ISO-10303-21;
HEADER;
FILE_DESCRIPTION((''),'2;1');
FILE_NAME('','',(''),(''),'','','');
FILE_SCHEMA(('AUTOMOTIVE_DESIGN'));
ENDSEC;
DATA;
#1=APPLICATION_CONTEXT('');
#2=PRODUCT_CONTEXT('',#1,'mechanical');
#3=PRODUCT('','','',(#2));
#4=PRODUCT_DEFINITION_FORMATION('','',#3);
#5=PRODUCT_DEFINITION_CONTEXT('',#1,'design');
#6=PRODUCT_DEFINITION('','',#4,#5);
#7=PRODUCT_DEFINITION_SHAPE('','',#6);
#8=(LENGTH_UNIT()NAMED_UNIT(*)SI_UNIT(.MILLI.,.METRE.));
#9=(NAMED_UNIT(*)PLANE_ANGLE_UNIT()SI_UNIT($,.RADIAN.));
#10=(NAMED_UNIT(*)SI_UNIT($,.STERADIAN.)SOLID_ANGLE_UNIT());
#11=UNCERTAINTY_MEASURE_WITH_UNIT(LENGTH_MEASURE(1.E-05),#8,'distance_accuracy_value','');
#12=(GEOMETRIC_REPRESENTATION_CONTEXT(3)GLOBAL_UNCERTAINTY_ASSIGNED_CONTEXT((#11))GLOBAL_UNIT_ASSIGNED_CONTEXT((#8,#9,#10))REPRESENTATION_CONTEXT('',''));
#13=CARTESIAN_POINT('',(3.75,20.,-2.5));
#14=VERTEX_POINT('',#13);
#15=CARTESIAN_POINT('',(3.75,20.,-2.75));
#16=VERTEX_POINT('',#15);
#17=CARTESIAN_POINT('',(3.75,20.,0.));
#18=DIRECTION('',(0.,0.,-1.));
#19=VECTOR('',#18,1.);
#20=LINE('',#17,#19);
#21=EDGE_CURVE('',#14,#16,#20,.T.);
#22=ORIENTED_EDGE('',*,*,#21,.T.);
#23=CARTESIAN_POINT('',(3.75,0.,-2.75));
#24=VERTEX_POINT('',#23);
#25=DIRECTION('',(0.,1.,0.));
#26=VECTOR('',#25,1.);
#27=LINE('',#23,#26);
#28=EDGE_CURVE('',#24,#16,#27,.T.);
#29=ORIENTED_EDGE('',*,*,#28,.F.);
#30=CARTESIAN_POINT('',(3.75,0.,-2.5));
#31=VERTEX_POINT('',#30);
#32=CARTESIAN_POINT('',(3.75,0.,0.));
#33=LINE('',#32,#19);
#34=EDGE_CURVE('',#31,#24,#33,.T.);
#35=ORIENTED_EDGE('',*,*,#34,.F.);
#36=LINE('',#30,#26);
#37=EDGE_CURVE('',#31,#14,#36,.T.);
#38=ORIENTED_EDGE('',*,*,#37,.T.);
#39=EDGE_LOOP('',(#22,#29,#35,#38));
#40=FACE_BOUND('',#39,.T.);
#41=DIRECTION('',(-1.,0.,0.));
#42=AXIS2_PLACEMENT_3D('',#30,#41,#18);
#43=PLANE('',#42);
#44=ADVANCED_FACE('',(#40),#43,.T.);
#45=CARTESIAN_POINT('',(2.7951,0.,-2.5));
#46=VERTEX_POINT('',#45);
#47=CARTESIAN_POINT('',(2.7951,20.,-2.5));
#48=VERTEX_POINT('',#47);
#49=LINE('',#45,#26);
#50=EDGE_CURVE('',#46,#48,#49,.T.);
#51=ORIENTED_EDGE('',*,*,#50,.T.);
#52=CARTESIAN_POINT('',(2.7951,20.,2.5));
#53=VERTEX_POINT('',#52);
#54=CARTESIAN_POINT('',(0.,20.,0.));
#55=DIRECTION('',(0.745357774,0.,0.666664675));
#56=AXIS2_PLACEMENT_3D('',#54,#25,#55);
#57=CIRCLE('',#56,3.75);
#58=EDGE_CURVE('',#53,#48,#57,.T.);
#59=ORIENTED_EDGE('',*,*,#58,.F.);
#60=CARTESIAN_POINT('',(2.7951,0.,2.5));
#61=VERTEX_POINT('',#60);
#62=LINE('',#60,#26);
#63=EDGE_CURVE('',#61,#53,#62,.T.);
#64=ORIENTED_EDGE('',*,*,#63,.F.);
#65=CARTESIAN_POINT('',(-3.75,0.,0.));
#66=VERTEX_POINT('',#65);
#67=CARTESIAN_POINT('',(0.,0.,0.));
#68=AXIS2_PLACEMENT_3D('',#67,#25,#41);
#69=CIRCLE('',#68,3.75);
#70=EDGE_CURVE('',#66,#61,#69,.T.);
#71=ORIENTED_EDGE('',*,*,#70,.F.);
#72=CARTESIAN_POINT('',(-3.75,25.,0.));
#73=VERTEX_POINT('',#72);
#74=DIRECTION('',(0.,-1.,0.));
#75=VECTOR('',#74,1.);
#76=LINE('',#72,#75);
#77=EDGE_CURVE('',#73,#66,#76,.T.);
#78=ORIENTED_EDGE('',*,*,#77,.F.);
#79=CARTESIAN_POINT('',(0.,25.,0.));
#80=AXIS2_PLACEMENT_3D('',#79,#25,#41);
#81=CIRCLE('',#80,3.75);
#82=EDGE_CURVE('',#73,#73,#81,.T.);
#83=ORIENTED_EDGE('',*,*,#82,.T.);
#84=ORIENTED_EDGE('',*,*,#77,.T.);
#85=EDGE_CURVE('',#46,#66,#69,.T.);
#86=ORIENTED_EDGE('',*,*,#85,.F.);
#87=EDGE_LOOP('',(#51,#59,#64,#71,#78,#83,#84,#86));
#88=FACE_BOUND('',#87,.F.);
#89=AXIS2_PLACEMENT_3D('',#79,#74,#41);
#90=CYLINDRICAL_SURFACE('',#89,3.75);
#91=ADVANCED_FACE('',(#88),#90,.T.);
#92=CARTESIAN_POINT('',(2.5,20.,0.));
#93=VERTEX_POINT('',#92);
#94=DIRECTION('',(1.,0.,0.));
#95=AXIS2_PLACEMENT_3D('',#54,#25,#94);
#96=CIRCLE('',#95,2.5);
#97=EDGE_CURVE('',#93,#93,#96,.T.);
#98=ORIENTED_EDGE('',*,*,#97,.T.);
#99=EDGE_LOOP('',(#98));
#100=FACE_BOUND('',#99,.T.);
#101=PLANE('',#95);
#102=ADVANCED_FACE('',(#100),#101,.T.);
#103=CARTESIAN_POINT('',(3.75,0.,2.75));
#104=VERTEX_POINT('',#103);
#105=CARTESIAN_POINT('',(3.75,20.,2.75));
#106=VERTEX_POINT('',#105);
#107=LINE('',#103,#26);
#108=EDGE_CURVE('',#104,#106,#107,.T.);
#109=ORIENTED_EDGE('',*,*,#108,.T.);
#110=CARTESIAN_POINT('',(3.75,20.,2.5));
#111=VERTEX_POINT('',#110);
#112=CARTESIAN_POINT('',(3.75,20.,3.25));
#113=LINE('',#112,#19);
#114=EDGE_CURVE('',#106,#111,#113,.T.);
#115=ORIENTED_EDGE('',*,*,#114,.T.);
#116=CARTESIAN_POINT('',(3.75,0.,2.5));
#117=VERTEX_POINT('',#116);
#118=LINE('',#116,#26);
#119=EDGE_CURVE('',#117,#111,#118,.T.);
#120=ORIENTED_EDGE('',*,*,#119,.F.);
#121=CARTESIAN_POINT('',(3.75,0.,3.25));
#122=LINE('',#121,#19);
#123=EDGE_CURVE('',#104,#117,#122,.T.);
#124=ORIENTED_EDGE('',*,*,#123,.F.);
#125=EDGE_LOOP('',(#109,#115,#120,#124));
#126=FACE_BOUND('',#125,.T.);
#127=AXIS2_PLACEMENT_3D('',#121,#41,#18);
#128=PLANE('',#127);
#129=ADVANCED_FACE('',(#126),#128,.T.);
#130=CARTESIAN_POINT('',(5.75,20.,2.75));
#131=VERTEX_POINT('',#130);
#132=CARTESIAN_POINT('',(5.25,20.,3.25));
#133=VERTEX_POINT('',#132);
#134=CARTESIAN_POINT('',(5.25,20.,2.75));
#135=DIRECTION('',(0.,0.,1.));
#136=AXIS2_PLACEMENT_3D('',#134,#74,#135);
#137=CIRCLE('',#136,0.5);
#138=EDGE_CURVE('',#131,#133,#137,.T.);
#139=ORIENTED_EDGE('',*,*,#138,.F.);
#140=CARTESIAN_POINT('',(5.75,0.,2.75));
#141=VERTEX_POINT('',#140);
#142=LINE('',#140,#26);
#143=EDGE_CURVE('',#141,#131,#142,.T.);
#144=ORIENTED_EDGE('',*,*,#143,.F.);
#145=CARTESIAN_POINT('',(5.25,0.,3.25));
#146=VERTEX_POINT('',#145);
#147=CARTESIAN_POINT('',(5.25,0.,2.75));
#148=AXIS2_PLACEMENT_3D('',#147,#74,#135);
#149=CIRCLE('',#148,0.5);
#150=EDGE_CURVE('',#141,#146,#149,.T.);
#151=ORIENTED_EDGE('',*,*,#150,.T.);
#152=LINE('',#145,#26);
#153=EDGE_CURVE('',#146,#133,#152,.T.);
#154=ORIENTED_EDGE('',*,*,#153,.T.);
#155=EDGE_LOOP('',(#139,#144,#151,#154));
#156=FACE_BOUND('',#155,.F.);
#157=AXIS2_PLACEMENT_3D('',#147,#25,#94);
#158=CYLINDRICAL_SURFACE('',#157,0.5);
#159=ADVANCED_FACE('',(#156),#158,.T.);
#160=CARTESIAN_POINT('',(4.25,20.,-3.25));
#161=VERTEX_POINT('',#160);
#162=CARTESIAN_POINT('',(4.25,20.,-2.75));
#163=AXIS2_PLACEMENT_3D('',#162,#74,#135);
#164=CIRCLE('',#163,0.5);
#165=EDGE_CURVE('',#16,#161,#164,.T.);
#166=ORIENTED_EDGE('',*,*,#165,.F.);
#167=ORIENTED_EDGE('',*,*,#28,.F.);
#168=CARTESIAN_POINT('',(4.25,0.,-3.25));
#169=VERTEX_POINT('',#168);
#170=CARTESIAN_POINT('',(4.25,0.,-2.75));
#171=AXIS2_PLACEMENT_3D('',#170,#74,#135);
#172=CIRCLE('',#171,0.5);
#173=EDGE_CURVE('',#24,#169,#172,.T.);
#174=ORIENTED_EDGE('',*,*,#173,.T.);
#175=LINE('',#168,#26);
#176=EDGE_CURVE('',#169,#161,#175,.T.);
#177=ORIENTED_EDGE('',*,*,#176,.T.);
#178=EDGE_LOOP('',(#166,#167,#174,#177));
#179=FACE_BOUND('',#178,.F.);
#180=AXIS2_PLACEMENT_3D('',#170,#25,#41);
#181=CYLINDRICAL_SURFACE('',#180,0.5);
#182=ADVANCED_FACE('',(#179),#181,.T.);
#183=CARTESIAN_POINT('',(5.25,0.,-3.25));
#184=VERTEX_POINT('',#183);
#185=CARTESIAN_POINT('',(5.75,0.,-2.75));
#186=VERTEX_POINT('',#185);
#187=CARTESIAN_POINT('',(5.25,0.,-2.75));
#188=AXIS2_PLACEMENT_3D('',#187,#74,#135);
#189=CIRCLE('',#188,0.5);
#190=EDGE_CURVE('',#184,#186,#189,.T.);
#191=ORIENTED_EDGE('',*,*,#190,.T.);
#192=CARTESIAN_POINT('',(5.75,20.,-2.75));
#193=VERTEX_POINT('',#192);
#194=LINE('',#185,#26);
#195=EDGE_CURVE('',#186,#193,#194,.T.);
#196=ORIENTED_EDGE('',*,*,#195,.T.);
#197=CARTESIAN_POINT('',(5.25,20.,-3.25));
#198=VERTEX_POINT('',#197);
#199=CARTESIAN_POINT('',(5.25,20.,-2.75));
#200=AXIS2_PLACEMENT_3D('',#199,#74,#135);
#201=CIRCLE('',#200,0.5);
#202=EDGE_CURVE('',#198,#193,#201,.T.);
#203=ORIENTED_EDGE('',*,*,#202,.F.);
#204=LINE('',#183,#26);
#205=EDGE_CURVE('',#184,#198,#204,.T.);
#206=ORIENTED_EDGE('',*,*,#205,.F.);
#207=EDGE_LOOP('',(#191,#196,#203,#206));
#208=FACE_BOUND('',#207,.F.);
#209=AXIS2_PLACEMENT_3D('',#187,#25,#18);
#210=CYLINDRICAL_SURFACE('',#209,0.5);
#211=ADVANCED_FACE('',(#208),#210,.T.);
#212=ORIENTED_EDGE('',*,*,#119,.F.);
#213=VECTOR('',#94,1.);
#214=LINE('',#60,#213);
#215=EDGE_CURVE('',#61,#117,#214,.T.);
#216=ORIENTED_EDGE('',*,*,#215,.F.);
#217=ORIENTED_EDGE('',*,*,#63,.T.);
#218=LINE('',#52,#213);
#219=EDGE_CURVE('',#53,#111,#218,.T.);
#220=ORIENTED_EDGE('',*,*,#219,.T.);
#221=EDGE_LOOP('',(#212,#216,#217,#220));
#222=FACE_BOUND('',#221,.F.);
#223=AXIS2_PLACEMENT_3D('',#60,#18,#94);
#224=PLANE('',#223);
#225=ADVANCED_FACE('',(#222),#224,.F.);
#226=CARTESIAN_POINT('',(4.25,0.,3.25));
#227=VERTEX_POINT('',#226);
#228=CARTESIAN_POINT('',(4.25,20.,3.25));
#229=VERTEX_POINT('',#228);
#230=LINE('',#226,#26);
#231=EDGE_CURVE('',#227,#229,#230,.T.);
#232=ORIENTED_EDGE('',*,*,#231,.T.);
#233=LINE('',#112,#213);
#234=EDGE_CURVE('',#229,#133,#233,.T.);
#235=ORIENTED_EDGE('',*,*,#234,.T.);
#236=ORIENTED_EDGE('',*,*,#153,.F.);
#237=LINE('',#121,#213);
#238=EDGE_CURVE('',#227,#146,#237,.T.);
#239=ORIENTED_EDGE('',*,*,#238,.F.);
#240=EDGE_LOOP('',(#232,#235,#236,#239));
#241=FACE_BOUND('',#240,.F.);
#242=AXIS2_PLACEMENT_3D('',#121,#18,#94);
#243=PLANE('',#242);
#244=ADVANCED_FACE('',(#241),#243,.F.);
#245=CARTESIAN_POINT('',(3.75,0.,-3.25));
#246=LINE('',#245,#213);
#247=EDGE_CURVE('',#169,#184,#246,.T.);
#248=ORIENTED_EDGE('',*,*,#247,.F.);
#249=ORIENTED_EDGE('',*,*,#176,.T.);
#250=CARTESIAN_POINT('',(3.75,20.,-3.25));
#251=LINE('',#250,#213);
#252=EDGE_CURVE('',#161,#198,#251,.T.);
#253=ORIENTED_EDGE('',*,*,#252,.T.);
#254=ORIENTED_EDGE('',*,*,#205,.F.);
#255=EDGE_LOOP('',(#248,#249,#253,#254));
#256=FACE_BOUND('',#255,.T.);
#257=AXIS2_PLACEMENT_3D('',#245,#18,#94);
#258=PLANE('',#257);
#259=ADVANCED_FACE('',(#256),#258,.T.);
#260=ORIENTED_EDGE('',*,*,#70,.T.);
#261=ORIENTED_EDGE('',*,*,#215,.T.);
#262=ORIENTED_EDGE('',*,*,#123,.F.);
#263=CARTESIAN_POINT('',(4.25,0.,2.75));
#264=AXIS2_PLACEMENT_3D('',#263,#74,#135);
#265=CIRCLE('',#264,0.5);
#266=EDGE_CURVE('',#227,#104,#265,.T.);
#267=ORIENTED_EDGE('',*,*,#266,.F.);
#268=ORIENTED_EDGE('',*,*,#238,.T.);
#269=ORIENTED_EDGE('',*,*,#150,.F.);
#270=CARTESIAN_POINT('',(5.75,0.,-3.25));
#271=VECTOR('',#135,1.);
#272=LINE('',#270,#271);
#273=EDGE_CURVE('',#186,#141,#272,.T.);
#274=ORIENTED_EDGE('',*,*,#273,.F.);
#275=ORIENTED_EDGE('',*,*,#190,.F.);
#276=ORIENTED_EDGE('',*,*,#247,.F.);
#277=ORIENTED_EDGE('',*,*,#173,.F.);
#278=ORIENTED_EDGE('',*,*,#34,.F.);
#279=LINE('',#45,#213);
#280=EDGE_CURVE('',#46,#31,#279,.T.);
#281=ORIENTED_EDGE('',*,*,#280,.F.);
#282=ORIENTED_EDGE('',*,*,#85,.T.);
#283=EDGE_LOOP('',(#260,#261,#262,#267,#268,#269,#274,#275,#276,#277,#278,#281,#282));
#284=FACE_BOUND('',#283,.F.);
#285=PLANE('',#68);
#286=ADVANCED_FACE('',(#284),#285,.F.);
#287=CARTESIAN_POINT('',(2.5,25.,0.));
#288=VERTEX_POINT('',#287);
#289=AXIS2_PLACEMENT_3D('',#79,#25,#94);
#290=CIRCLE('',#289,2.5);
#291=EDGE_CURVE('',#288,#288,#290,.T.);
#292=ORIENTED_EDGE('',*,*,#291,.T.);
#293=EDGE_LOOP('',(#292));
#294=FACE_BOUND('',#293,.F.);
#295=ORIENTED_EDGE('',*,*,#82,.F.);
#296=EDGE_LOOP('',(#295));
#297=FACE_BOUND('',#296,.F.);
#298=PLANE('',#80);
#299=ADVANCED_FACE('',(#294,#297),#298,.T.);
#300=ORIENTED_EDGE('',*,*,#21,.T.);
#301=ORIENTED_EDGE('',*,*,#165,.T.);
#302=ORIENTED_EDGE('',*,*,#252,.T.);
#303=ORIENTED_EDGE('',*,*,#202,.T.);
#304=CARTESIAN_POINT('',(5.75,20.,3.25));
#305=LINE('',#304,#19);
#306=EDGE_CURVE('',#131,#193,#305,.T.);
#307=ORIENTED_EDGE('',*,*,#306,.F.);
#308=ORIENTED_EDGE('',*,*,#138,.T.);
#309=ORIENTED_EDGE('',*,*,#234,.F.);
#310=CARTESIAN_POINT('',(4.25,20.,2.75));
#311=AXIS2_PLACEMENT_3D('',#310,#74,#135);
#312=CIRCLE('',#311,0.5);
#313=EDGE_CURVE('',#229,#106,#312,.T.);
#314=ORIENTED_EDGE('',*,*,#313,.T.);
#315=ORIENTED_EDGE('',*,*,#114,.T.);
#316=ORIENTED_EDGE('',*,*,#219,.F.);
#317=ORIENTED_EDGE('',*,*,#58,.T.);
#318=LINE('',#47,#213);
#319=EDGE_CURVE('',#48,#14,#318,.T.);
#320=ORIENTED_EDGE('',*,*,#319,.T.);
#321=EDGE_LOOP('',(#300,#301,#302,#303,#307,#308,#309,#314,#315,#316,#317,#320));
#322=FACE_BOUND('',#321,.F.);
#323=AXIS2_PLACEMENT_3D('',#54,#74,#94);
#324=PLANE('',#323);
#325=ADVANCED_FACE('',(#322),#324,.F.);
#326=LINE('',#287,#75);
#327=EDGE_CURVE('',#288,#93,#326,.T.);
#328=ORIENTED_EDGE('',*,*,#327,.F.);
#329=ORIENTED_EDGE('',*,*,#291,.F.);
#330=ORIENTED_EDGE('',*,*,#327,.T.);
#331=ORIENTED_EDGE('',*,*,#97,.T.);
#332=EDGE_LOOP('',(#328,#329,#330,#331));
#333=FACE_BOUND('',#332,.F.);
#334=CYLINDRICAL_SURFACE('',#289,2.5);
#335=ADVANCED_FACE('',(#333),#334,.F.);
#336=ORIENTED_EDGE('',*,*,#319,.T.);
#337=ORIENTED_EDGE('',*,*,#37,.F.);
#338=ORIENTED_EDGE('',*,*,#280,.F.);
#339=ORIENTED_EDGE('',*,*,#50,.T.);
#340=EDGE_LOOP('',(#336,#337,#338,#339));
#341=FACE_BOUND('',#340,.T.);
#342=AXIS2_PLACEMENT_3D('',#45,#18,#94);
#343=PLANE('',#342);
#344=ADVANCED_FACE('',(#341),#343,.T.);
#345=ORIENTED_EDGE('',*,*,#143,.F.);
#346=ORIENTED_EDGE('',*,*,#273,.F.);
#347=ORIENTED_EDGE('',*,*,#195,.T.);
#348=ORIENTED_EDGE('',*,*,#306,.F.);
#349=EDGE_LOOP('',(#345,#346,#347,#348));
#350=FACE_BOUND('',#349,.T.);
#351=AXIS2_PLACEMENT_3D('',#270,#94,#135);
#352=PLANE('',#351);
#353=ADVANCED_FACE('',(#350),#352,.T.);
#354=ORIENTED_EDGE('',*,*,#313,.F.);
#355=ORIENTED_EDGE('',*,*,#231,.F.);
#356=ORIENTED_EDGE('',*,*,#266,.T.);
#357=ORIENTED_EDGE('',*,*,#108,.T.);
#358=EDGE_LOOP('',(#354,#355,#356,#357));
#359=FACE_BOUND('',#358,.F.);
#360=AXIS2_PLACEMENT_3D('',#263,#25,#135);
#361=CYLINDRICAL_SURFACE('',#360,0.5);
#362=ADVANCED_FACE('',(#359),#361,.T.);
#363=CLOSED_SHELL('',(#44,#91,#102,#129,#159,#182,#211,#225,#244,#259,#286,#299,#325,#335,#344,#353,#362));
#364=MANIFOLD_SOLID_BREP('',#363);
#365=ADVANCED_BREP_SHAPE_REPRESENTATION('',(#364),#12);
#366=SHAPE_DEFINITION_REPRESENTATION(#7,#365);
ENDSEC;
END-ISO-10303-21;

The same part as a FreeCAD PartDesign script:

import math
import FreeCAD as App
import Part
import Sketcher


def edges_at(feature, points):
    """Names of the edges that pass closest to the given points."""
    edges = feature.Shape.Edges
    near = lambda p: min(range(len(edges)), key=lambda i: edges[i].distToShape(Part.Vertex(*p))[0])
    return sorted({f"Edge{near(p) + 1}" for p in points})


def add_polygon(sketch, points):
    """Adds a closed chain of lines whose ends are joined by coincident constraints."""
    first, n = sketch.GeometryCount, len(points)
    for a, b in zip(points, points[1:] + points[:1]):
        sketch.addGeometry(Part.LineSegment(App.Vector(*a, 0), App.Vector(*b, 0)), False)
    for i in range(n):
        sketch.addConstraint(Sketcher.Constraint("Coincident", first + i, 2, first + (i + 1) % n, 1))

doc = App.newDocument("Part")
body = doc.addObject("PartDesign::Body", "Body")

# Sketch on XY plane
sketch1 = body.newObject("Sketcher::SketchObject", "Sketch")
sketch1.AttachmentSupport = (doc.getObject("XY_Plane"), [""])
sketch1.MapMode = "FlatFace"
add_polygon(sketch1, [(0, 0), (0, 25), (-3.8, 25), (-3.8, 0)])  # lines 0-3
sketch1.addConstraint([
    Sketcher.Constraint("Vertical", 0),
    Sketcher.Constraint("Horizontal", 1),
    Sketcher.Constraint("Vertical", 2),
    Sketcher.Constraint("Horizontal", 3),
    Sketcher.Constraint("Coincident", 3, 2, -1, 1),
    Sketcher.Constraint("DistanceY", 0, 1, 0, 2, 25.0),
    Sketcher.Constraint("DistanceX", 1, 2, 1, 1, 3.75),
])
revolution = body.newObject("PartDesign::Revolution", "Revolution")
revolution.Profile = sketch1
revolution.ReferenceAxis = (sketch1, ["V_Axis"])
revolution.Angle = 360

# Sketch on XZ plane
sketch2 = body.newObject("Sketcher::SketchObject", "Sketch001")
sketch2.AttachmentSupport = (doc.getObject("XZ_Plane"), [""])
sketch2.MapMode = "FlatFace"
sketch2.AttachmentOffset = App.Placement(App.Vector(0, 0, -25), App.Rotation())
sketch2.addGeometry(Part.Circle(App.Vector(0, 0, 0), App.Vector(0, 0, 1), 2.5), False)
sketch2.addConstraint([
    Sketcher.Constraint("Coincident", 0, 3, -1, 1),
    Sketcher.Constraint("Diameter", 0, 5.0),
])
pocket1 = body.newObject("PartDesign::Pocket", "Pocket")
pocket1.Profile = sketch2
pocket1.Length = 5
pocket1.Reversed = True

# Sketch on XZ plane
sketch3 = body.newObject("Sketcher::SketchObject", "Sketch002")
sketch3.AttachmentSupport = (doc.getObject("XZ_Plane"), [""])
sketch3.MapMode = "FlatFace"
sketch3.addGeometry([
    Part.LineSegment(App.Vector(2.8, -2.5, 0), App.Vector(3.8, -2.5, 0)),  # 0
    Part.LineSegment(App.Vector(3.8, -2.5, 0), App.Vector(3.8, -3.2, 0)),  # 1
    Part.LineSegment(App.Vector(3.8, -3.2, 0), App.Vector(5.8, -3.2, 0)),  # 2
    Part.LineSegment(App.Vector(5.8, -3.2, 0), App.Vector(5.8, 3.2, 0)),  # 3
    Part.LineSegment(App.Vector(5.8, 3.2, 0), App.Vector(3.8, 3.2, 0)),  # 4
    Part.LineSegment(App.Vector(3.8, 3.2, 0), App.Vector(3.8, 2.5, 0)),  # 5
    Part.LineSegment(App.Vector(3.8, 2.5, 0), App.Vector(2.8, 2.5, 0)),  # 6
    Part.ArcOfCircle(Part.Circle(App.Vector(0, 0, 0), App.Vector(0, 0, 1), 3.8), math.radians(-42), math.radians(42)),  # 7
], False)
sketch3.addConstraint([
    Sketcher.Constraint("Coincident", 0, 2, 1, 1),
    Sketcher.Constraint("Coincident", 1, 2, 2, 1),
    Sketcher.Constraint("Coincident", 2, 2, 3, 1),
    Sketcher.Constraint("Coincident", 3, 2, 4, 1),
    Sketcher.Constraint("Coincident", 4, 2, 5, 1),
    Sketcher.Constraint("Coincident", 5, 2, 6, 1),
    Sketcher.Constraint("Coincident", 6, 2, 7, 2),
    Sketcher.Constraint("Coincident", 7, 1, 0, 1),
    Sketcher.Constraint("Horizontal", 0),
    Sketcher.Constraint("Vertical", 1),
    Sketcher.Constraint("Horizontal", 2),
    Sketcher.Constraint("Vertical", 3),
    Sketcher.Constraint("Horizontal", 4),
    Sketcher.Constraint("Vertical", 5),
    Sketcher.Constraint("Horizontal", 6),
    Sketcher.Constraint("Coincident", 7, 3, -1, 1),
    Sketcher.Constraint("Symmetric", 1, 2, 4, 2, -1),
    Sketcher.Constraint("Vertical", 6, 2, 7, 1),
    Sketcher.Constraint("DistanceX", 2, 1, 2, 2, 2.0),
    Sketcher.Constraint("DistanceY", 3, 1, 3, 2, 6.5),
    Sketcher.Constraint("DistanceY", 0, 2, 5, 2, 5.0),
    Sketcher.Constraint("Radius", 7, 3.75),
    Sketcher.Constraint("DistanceX", 0, 1, 0, 2, 0.955),
])
pad1 = body.newObject("PartDesign::Pad", "Pad")
pad1.Profile = sketch3
pad1.Length = 20
pad1.Reversed = True
doc.recompute()

fillet = body.newObject("PartDesign::Fillet", "Fillet")
fillet.Base = (pad1, edges_at(pad1, [
    (5.75, 10, 3.25),
    (5.75, 10, -3.25),
    (3.75, 10, 3.25),
    (3.75, 10, -3.25),
]))
fillet.Radius = 0.5

doc.recompute()
